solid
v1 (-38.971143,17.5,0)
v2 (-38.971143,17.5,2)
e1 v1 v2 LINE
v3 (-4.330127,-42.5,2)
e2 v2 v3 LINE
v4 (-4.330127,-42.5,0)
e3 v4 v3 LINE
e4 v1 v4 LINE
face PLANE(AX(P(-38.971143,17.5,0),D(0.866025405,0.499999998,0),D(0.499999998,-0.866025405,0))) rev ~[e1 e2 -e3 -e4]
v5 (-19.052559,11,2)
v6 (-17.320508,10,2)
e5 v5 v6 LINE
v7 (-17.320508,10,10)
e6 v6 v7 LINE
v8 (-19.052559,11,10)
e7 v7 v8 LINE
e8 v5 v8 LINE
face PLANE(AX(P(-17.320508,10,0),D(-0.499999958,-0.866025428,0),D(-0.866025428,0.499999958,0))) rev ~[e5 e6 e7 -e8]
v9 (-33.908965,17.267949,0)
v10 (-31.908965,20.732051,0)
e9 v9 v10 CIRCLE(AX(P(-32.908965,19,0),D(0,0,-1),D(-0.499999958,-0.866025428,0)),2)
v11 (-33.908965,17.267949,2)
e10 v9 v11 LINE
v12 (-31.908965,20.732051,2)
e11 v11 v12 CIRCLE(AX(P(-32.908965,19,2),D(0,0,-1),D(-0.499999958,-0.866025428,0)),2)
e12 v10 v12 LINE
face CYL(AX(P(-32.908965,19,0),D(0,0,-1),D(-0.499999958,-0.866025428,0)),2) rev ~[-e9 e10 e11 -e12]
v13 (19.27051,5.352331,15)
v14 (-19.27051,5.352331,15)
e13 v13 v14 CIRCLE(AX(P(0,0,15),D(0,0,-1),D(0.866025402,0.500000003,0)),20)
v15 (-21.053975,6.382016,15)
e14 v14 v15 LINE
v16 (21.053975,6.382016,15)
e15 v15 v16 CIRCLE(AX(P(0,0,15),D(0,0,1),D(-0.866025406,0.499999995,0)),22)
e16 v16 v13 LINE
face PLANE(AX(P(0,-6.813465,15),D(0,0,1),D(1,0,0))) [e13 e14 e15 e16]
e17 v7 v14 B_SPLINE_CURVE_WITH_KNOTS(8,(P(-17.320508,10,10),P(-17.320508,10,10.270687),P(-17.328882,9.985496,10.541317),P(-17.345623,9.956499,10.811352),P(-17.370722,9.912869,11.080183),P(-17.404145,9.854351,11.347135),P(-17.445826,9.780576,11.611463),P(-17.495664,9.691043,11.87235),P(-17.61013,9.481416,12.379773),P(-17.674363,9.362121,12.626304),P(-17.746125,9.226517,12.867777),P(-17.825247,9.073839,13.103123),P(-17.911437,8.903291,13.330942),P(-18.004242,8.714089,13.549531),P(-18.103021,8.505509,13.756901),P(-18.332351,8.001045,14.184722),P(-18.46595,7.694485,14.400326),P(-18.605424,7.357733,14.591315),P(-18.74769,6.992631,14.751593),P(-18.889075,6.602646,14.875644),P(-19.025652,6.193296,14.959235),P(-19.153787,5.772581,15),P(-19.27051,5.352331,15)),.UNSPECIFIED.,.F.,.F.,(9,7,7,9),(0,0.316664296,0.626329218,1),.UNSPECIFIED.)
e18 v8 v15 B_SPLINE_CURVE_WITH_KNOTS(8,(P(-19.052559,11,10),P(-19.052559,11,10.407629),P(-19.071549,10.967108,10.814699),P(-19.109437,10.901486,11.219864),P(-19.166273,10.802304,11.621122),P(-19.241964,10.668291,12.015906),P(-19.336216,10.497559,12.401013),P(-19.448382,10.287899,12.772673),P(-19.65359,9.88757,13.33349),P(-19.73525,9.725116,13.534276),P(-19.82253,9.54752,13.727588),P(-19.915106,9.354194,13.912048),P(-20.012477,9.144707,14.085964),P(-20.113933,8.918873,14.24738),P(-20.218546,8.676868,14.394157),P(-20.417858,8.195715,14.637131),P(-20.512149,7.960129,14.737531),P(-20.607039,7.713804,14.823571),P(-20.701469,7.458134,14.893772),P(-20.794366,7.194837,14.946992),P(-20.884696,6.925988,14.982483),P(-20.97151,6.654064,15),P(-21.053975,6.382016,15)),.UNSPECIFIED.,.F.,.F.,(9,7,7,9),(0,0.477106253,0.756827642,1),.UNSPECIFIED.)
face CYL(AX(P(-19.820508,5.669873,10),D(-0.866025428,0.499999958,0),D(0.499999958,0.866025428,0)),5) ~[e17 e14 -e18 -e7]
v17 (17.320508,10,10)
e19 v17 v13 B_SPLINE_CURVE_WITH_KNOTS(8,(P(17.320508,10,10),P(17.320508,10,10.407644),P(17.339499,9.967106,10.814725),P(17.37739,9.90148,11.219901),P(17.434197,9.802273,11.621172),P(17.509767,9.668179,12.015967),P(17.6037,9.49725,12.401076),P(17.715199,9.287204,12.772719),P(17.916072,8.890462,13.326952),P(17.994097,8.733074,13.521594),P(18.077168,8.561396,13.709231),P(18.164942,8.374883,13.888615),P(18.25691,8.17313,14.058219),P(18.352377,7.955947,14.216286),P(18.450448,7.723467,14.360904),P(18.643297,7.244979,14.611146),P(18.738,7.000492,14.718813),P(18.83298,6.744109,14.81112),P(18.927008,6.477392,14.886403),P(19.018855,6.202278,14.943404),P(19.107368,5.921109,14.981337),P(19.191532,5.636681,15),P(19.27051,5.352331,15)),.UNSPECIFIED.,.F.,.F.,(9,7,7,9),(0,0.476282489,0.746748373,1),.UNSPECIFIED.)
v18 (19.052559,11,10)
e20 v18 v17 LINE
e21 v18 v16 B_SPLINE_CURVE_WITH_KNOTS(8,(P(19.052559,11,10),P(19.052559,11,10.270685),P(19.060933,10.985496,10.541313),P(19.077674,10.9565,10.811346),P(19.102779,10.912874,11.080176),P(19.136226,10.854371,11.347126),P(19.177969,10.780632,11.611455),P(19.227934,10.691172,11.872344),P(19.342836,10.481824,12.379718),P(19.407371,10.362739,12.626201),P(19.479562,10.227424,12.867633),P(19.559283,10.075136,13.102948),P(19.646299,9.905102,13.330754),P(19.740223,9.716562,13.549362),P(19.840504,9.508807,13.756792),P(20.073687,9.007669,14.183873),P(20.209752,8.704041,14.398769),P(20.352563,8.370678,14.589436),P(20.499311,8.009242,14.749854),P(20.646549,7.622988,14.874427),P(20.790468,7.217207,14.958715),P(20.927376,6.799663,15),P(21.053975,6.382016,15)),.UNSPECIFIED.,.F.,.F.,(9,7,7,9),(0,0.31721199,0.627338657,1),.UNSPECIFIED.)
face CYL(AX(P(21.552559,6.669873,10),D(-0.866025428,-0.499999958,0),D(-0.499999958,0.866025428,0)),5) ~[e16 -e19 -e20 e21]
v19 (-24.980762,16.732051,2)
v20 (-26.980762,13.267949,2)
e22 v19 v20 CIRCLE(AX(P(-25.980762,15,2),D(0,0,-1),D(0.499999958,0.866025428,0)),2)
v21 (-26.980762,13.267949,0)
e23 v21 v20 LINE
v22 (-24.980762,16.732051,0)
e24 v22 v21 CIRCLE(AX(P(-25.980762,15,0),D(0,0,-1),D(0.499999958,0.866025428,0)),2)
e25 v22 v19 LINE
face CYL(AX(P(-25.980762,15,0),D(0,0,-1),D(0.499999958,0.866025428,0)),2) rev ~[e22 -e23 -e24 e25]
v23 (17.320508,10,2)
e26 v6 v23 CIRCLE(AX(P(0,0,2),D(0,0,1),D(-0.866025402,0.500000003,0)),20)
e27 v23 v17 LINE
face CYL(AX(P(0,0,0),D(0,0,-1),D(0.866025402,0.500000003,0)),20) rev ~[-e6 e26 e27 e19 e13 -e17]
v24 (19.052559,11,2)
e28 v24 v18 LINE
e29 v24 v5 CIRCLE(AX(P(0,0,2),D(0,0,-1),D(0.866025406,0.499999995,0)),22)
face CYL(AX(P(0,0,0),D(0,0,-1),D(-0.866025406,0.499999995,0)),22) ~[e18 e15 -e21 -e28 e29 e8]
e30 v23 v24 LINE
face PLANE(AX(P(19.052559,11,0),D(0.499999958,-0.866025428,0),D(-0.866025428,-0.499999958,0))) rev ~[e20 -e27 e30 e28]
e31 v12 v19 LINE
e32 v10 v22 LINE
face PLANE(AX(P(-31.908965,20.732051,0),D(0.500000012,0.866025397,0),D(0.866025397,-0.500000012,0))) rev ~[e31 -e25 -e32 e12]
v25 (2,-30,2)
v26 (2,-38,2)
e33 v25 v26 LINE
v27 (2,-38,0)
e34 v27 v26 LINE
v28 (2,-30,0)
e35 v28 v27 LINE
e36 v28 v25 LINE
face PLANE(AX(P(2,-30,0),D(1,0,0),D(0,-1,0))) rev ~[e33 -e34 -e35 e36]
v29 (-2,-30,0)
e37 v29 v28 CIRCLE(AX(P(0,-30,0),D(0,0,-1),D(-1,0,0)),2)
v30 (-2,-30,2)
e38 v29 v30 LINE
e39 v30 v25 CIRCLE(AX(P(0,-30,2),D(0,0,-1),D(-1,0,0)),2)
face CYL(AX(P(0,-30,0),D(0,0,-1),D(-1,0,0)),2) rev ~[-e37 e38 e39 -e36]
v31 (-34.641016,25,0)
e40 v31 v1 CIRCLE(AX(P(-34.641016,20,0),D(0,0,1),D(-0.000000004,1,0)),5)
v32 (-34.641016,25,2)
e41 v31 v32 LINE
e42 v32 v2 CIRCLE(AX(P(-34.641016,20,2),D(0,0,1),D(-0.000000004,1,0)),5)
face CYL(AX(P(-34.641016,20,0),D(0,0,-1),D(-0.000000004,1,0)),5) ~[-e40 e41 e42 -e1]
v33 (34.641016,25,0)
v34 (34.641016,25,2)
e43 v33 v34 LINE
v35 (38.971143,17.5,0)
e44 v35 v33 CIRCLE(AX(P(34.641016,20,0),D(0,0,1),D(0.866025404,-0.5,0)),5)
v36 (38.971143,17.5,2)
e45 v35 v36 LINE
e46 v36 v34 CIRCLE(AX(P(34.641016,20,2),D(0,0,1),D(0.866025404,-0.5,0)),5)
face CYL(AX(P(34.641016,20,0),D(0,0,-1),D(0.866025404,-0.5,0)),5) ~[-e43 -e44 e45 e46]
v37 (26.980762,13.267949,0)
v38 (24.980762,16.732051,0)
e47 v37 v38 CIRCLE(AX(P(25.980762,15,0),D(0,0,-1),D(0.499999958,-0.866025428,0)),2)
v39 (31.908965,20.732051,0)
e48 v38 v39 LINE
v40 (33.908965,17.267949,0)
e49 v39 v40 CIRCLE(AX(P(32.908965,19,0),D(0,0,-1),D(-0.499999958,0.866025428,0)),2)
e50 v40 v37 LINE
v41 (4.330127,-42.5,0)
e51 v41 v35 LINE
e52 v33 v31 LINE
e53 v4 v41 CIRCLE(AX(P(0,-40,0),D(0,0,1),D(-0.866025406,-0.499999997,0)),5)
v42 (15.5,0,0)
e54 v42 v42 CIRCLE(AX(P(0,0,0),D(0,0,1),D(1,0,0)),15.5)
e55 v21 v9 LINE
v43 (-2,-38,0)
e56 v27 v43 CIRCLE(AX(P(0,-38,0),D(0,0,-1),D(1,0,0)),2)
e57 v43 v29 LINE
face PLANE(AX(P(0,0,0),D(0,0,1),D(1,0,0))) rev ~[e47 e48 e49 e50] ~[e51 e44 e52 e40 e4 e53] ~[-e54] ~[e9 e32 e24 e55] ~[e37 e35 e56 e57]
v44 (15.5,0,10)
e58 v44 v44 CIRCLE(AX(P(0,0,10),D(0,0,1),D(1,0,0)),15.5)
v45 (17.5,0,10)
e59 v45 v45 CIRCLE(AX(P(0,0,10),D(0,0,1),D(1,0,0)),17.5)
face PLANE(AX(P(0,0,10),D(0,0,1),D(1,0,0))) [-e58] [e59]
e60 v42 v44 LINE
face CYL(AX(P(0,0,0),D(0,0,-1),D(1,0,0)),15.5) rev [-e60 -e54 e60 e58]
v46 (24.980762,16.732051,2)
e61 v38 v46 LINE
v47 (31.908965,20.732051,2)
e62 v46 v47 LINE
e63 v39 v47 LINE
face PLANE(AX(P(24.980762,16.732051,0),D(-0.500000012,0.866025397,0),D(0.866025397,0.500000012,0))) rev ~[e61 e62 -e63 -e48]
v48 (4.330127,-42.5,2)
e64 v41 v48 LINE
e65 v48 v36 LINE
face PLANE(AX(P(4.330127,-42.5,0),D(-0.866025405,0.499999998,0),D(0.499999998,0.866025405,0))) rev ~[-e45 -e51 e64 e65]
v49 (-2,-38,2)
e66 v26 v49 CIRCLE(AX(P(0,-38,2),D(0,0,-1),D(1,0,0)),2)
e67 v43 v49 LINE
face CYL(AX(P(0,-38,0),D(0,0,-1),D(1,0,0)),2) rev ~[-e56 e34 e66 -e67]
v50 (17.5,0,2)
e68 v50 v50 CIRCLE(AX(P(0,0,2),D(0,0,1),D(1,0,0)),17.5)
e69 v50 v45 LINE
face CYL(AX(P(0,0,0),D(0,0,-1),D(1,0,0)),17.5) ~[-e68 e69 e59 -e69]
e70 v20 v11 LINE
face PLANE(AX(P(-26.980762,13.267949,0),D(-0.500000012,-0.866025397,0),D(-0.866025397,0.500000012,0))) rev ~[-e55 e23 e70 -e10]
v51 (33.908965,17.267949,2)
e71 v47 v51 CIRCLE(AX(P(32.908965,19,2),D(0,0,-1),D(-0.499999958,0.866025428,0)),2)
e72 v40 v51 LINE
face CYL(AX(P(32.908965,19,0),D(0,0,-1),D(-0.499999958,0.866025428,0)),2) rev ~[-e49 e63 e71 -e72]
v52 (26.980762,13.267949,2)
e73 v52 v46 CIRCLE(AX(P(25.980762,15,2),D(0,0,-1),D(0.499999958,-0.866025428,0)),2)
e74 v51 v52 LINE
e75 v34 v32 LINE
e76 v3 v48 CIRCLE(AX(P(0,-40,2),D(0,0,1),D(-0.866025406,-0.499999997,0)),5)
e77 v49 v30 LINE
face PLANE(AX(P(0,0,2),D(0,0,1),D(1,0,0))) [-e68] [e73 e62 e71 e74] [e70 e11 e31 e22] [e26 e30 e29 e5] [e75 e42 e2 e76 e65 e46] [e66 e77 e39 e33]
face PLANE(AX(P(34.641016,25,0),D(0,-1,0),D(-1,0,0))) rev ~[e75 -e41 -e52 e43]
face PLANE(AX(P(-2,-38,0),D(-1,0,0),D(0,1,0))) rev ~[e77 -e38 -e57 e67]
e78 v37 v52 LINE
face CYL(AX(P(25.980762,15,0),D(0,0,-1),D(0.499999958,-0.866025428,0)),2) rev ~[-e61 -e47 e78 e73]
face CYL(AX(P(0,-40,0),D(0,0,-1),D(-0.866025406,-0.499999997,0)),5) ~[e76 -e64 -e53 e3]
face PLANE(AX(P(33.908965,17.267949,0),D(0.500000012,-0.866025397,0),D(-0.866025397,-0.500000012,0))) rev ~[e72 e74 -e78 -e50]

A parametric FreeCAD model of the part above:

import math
import FreeCAD as App
import Part
import Sketcher
Q = App.Units.Quantity


def edges_at(feature, points):
    """Names of the edges that pass closest to the given points."""
    edges = feature.Shape.Edges
    near = lambda p: min(range(len(edges)), key=lambda i: edges[i].distToShape(Part.Vertex(*p))[0])
    return sorted({f"Edge{near(p) + 1}" for p in points})

doc = App.newDocument("Part")
body = doc.addObject("PartDesign::Body", "Body")

# Sketch on XY plane
sketch1 = doc.addObject("Sketcher::SketchObject", "Sketch")
body.addObject(sketch1)
sketch1.AttachmentSupport = (doc.XY_Plane, [""])
sketch1.MapMode = "FlatFace"
sketch1.addGeometry([
    Part.LineSegment(App.Vector(34.641016, 25, 0), App.Vector(-34.641016, 25, 0)),  # 0
    Part.ArcOfCircle(Part.Circle(App.Vector(-34.641016, 20, 0), App.Vector(0, 0, 1), 5), math.radians(90), math.radians(210)),  # 1
    Part.LineSegment(App.Vector(-38.971143, 17.5, 0), App.Vector(-4.330127, -42.5, 0)),  # 2
    Part.ArcOfCircle(Part.Circle(App.Vector(0, -40, 0), App.Vector(0, 0, 1), 5), math.radians(-150), math.radians(-30)),  # 3
    Part.LineSegment(App.Vector(4.330127, -42.5, 0), App.Vector(38.971143, 17.5, 0)),  # 4
    Part.ArcOfCircle(Part.Circle(App.Vector(34.641016, 20, 0), App.Vector(0, 0, 1), 5), math.radians(-30), math.radians(90)),  # 5
    Part.LineSegment(App.Vector(2, -30, 0), App.Vector(2, -38, 0)),  # 6
    Part.ArcOfCircle(Part.Circle(App.Vector(0, -38, 0), App.Vector(0, 0, 1), 2), math.radians(180), math.radians(360)),  # 7
    Part.LineSegment(App.Vector(-2, -38, 0), App.Vector(-2, -30, 0)),  # 8
    Part.ArcOfCircle(Part.Circle(App.Vector(0, -30, 0), App.Vector(0, 0, 1), 2), math.radians(0), math.radians(180)),  # 9
    Part.ArcOfCircle(Part.Circle(App.Vector(0, 0, 0), App.Vector(0, 0, 1), 22), math.radians(150), math.radians(390)),  # 10
    Part.LineSegment(App.Vector(-19.052559, 11, 0), App.Vector(-17.320508, 10, 0)),  # 11
    Part.ArcOfCircle(Part.Circle(App.Vector(0, 0, 0), App.Vector(0, 0, 1), 20), math.radians(150), math.radians(390)),  # 12
    Part.LineSegment(App.Vector(17.320508, 10, 0), App.Vector(19.052559, 11, 0)),  # 13
    Part.Circle(App.Vector(0, 0, 0), App.Vector(0, 0, 1), 17.5),  # 14
    Part.LineSegment(App.Vector(-26.980762, 13.267949, 0), App.Vector(-33.908965, 17.267949, 0)),  # 15
    Part.ArcOfCircle(Part.Circle(App.Vector(-32.908965, 19, 0), App.Vector(0, 0, 1), 2), math.radians(60.000003), math.radians(240.000003)),  # 16
    Part.LineSegment(App.Vector(-31.908965, 20.732051, 0), App.Vector(-24.980762, 16.732051, 0)),  # 17
    Part.ArcOfCircle(Part.Circle(App.Vector(-25.980762, 15, 0), App.Vector(0, 0, 1), 2), math.radians(-119.999997), math.radians(60.000003)),  # 18
    Part.LineSegment(App.Vector(24.980762, 16.732051, 0), App.Vector(31.908965, 20.732051, 0)),  # 19
    Part.ArcOfCircle(Part.Circle(App.Vector(32.908965, 19, 0), App.Vector(0, 0, 1), 2), math.radians(-60.000003), math.radians(119.999997)),  # 20
    Part.LineSegment(App.Vector(33.908965, 17.267949, 0), App.Vector(26.980762, 13.267949, 0)),  # 21
    Part.ArcOfCircle(Part.Circle(App.Vector(25.980762, 15, 0), App.Vector(0, 0, 1), 2), math.radians(119.999997), math.radians(299.999997)),  # 22
], False)
sketch1.addConstraint([
    Sketcher.Constraint("Tangent", 0, 2, 1, 1),
    Sketcher.Constraint("Tangent", 1, 2, 2, 1),
    Sketcher.Constraint("Tangent", 2, 2, 3, 1),
    Sketcher.Constraint("Tangent", 3, 2, 4, 1),
    Sketcher.Constraint("Tangent", 4, 2, 5, 1),
    Sketcher.Constraint("Tangent", 5, 2, 0, 1),
    Sketcher.Constraint("Tangent", 6, 2, 7, 2),
    Sketcher.Constraint("Tangent", 7, 1, 8, 1),
    Sketcher.Constraint("Tangent", 8, 2, 9, 2),
    Sketcher.Constraint("Tangent", 9, 1, 6, 1),
    Sketcher.Constraint("Coincident", 10, 1, 11, 1),
    Sketcher.Constraint("Coincident", 11, 2, 12, 1),
    Sketcher.Constraint("Coincident", 12, 2, 13, 1),
    Sketcher.Constraint("Coincident", 13, 2, 10, 2),
    Sketcher.Constraint("Tangent", 15, 2, 16, 2),
    Sketcher.Constraint("Tangent", 16, 1, 17, 1),
    Sketcher.Constraint("Tangent", 17, 2, 18, 2),
    Sketcher.Constraint("Tangent", 18, 1, 15, 1),
    Sketcher.Constraint("Tangent", 19, 2, 20, 2),
    Sketcher.Constraint("Tangent", 20, 1, 21, 1),
    Sketcher.Constraint("Tangent", 21, 2, 22, 2),
    Sketcher.Constraint("Tangent", 22, 1, 19, 1),
    Sketcher.Constraint("Horizontal", 0),
    Sketcher.Constraint("Vertical", 6),
    Sketcher.Constraint("Vertical", 8),
    Sketcher.Constraint("Coincident", 10, 3, -1, 1),
    Sketcher.Constraint("Coincident", 12, 3, -1, 1),
    Sketcher.Constraint("Coincident", 14, 3, -1, 1),
    Sketcher.Constraint("Equal", 1, 3),
    Sketcher.Constraint("Equal", 3, 5),
    Sketcher.Constraint("Equal", 9, 16),
    Sketcher.Constraint("Equal", 16, 18),
    Sketcher.Constraint("Equal", 18, 20),
    Sketcher.Constraint("Equal", 20, 22),
    Sketcher.Constraint("Symmetric", 16, 3, 20, 3, -2),
    Sketcher.Constraint("Symmetric", 18, 3, 22, 3, -2),
    Sketcher.Constraint("Symmetric", 2, 2, 3, 2, -2),
    Sketcher.Constraint("PointOnObject", 7, 3, -2),
    Sketcher.Constraint("Perpendicular", 4, 11),
    Sketcher.Constraint("Perpendicular", 2, 13),
    Sketcher.Constraint("Parallel", 11, 15),
    Sketcher.Constraint("Horizontal", 11, 2, 12, 2),
    Sketcher.Constraint("Diameter", 14, Q("35 mm")),
    Sketcher.Constraint("Radius", 1, Q("5 mm")),
    Sketcher.Constraint("Radius", 7, Q("2 mm")),
    Sketcher.Constraint("Radius", 10, Q("22 mm")),
    Sketcher.Constraint("Radius", 12, Q("20 mm")),
    Sketcher.Constraint("DistanceY", 6, 2, 6, 1, Q("8 mm")),
    Sketcher.Constraint("Angle", 2, Q("-60 deg")),
    Sketcher.Constraint("Distance", 15, Q("8 mm")),
    Sketcher.Constraint("DistanceY", -1, 1, 1, 3, Q("20 mm")),
    Sketcher.Constraint("DistanceY", 3, 3, -1, 1, Q("40 mm")),
    Sketcher.Constraint("DistanceY", 7, 3, -1, 1, Q("38 mm")),
    Sketcher.Constraint("DistanceY", -1, 1, 16, 3, Q("19 mm")),
    Sketcher.Constraint("DistanceY", -1, 1, 10, 1, Q("11 mm")),
    Sketcher.Constraint("DistanceX", 18, 3, -1, 1, Q("25.980762 mm")),
])
pad1 = doc.addObject("PartDesign::Pad", "Pad")
body.addObject(pad1)
pad1.Profile = sketch1
pad1.Length = 2

# Sketch on XY plane
sketch2 = doc.addObject("Sketcher::SketchObject", "Sketch001")
body.addObject(sketch2)
sketch2.AttachmentSupport = (doc.XY_Plane, [""])
sketch2.MapMode = "FlatFace"
sketch2.addGeometry([
    Part.ArcOfCircle(Part.Circle(App.Vector(0, 0, 0), App.Vector(0, 0, 1), 20), math.radians(150), math.radians(390)),
    Part.LineSegment(App.Vector(-17.320508, 10, 0), App.Vector(-19.052559, 11, 0)),
    Part.ArcOfCircle(Part.Circle(App.Vector(0, 0, 0), App.Vector(0, 0, 1), 22), math.radians(150), math.radians(390)),
    Part.LineSegment(App.Vector(19.052559, 11, 0), App.Vector(17.320508, 10, 0)),
], False)
sketch2.addConstraint([
    Sketcher.Constraint("Coincident", 0, 1, 1, 1),
    Sketcher.Constraint("Coincident", 1, 2, 2, 1),
    Sketcher.Constraint("Coincident", 2, 2, 3, 1),
    Sketcher.Constraint("Coincident", 3, 2, 0, 2),
    Sketcher.Constraint("Coincident", 0, 3, -1, 1),
    Sketcher.Constraint("Coincident", 2, 3, -1, 1),
    Sketcher.Constraint("Horizontal", 1, 2, 2, 2),
    Sketcher.Constraint("Horizontal", 0, 1, 3, 2),
    Sketcher.Constraint("Radius", 0, Q("20 mm")),
    Sketcher.Constraint("Radius", 2, Q("22 mm")),
    Sketcher.Constraint("Angle", 1, Q("150.000003 deg")),
    Sketcher.Constraint("DistanceY", -1, 1, 0, 1, Q("10 mm")),
])
pad2 = doc.addObject("PartDesign::Pad", "Pad001")
body.addObject(pad2)
pad2.Profile = sketch2
pad2.Length = 15

# Sketch on XY plane
sketch3 = doc.addObject("Sketcher::SketchObject", "Sketch002")
body.addObject(sketch3)
sketch3.AttachmentSupport = (doc.XY_Plane, [""])
sketch3.MapMode = "FlatFace"
sketch3.addGeometry([
    Part.Circle(App.Vector(0, 0, 0), App.Vector(0, 0, 1), 17.5),
    Part.Circle(App.Vector(0, 0, 0), App.Vector(0, 0, 1), 15.5),
], False)
sketch3.addConstraint([
    Sketcher.Constraint("Coincident", 0, 3, -1, 1),
    Sketcher.Constraint("Coincident", 1, 3, -1, 1),
    Sketcher.Constraint("Diameter", 0, Q("35 mm")),
    Sketcher.Constraint("Diameter", 1, Q("31 mm")),
])
pad3 = doc.addObject("PartDesign::Pad", "Pad002")
body.addObject(pad3)
pad3.Profile = sketch3
pad3.Length = 10
doc.recompute()

fillet = doc.addObject("PartDesign::Fillet", "Fillet")
body.addObject(fillet)
fillet.Base = (pad3, edges_at(pad3, [(-18.187, 10.5, 15), (18.187, 10.5, 15)]))
fillet.Radius = 5

doc.recompute()
